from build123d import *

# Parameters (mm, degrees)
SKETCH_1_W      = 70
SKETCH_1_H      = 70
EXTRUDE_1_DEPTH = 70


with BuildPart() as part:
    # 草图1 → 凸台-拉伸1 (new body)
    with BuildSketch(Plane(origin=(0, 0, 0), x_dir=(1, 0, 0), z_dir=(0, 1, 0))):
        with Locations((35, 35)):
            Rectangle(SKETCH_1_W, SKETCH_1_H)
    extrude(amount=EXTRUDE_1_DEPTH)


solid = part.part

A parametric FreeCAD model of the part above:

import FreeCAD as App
import Part
import Sketcher

V = App.Vector


def add_polygon(sketch, points):
    """Adds a closed chain of lines whose ends are joined by coincident constraints."""
    first, n = sketch.GeometryCount, len(points)
    for a, b in zip(points, points[1:] + points[:1]):
        sketch.addGeometry(Part.LineSegment(App.Vector(*a, 0), App.Vector(*b, 0)), False)
    for i in range(n):
        sketch.addConstraint(Sketcher.Constraint("Coincident", first + i, 2, first + (i + 1) % n, 1))

doc = App.newDocument("Part")
body = doc.addObject("PartDesign::Body", "Body")

sketch1 = body.newObject("Sketcher::SketchObject", "Sketch")
sketch1.AttachmentSupport = (doc.getObject("XZ_Plane"), [""])
sketch1.MapMode = "FlatFace"
add_polygon(sketch1, [(0, -70), (0, 0), (70, 0), (70, -70)])
sketch1.addConstraint([
    Sketcher.Constraint("Vertical", 0),
    Sketcher.Constraint("Horizontal", 1),
    Sketcher.Constraint("Vertical", 2),
    Sketcher.Constraint("Horizontal", 3),
    Sketcher.Constraint("Coincident", 0, 2, -1, 1),
    Sketcher.Constraint("Equal", 3, 0),
    Sketcher.Constraint("DistanceX", 1, 1, 1, 2, 70.0),
])
pad1 = body.newObject("PartDesign::Pad", "Pad")
pad1.Profile = sketch1
pad1.Length = 70
pad1.Reversed = True

doc.recompute()
